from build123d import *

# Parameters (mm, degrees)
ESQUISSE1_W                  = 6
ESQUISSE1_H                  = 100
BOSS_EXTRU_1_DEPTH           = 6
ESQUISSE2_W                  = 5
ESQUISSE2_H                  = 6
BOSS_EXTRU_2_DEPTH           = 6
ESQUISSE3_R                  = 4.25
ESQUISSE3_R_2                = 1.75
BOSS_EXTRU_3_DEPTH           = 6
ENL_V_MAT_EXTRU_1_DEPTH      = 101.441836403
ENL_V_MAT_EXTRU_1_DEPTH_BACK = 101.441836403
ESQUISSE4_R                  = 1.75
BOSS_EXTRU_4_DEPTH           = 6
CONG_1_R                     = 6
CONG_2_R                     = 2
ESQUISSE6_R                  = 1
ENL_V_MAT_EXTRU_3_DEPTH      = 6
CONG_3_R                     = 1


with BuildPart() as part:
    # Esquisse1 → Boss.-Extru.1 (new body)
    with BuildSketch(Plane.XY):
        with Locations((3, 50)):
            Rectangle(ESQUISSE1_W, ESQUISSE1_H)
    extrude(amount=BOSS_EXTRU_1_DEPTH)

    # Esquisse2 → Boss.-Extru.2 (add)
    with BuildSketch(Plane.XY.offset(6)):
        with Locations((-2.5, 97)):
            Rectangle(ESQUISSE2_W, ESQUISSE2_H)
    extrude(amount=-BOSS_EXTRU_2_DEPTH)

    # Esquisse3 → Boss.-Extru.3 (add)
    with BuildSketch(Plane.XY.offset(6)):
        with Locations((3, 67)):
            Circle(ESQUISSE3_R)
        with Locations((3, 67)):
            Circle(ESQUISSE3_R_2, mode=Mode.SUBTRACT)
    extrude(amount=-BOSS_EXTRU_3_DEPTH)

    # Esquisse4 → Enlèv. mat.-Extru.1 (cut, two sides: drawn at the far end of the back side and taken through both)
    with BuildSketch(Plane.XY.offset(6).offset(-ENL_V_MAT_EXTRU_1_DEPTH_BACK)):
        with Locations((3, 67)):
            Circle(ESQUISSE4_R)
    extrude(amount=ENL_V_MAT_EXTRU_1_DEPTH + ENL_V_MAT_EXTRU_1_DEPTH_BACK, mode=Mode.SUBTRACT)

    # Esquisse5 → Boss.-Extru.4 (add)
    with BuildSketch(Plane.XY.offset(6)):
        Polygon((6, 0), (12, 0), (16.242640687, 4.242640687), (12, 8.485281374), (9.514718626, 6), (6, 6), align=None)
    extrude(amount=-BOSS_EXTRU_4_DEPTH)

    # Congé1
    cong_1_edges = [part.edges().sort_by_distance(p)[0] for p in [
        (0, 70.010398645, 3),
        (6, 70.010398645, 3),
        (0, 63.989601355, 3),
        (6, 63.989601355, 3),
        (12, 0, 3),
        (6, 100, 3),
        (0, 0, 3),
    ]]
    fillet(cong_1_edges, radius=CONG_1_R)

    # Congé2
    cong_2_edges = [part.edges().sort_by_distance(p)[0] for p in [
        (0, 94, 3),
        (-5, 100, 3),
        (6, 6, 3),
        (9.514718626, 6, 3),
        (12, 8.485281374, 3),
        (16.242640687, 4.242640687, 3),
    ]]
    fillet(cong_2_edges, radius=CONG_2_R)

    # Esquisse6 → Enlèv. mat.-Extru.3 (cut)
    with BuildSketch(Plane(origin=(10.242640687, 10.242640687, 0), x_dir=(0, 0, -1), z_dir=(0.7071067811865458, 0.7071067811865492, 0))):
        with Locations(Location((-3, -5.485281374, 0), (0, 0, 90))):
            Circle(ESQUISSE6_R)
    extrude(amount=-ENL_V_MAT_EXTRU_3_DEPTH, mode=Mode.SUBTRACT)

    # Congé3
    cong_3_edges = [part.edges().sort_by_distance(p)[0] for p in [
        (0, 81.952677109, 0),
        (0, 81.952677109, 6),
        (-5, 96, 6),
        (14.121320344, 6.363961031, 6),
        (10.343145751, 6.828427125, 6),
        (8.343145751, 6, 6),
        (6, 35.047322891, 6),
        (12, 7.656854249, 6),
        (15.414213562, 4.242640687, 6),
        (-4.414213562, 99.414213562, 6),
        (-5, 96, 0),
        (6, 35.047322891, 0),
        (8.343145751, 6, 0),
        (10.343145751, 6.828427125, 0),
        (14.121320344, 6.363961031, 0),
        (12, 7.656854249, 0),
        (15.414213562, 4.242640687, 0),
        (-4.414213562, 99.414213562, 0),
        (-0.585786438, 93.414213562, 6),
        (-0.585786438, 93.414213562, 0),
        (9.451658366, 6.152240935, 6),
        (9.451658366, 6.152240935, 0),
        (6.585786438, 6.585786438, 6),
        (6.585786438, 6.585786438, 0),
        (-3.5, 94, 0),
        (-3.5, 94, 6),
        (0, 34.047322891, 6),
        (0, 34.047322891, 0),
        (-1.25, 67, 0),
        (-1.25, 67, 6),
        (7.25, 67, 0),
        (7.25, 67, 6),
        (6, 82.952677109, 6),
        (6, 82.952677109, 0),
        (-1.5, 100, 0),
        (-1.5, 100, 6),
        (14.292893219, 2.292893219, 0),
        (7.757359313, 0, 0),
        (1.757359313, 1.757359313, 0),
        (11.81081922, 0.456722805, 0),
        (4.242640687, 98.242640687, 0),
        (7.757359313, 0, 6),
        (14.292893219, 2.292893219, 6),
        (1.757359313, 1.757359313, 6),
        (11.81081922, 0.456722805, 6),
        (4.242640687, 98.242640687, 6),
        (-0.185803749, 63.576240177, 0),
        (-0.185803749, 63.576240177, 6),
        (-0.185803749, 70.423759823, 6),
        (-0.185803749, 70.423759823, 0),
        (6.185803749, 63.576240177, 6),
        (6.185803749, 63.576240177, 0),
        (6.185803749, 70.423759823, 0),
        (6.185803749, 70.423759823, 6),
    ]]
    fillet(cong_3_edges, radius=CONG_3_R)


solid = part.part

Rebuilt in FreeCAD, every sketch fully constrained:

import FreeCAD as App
import Part
import Sketcher
from FreeCAD import Vector
Q = App.Units.Quantity


def edges_at(feature, points):
    """Names of the edges that pass closest to the given points."""
    edges = feature.Shape.Edges
    near = lambda p: min(range(len(edges)), key=lambda i: edges[i].distToShape(Part.Vertex(*p))[0])
    return sorted({f"Edge{near(p) + 1}" for p in points})

doc = App.newDocument("Part")
body = doc.addObject("PartDesign::Body", "Body")

sketch1 = body.newObject("Sketcher::SketchObject", "Sketch")
sketch1.AttachmentSupport = (doc.getObject("XY_Plane"), [""])
sketch1.MapMode = "FlatFace"
sketch1.addGeometry(Part.LineSegment(Vector(0, 100, 0), Vector(0, 0, 0)), False)
sketch1.addGeometry(Part.LineSegment(Vector(0, 0, 0), Vector(6, 0, 0)), False)
sketch1.addGeometry(Part.LineSegment(Vector(6, 0, 0), Vector(6, 100, 0)), False)
sketch1.addGeometry(Part.LineSegment(Vector(6, 100, 0), Vector(0, 100, 0)), False)
sketch1.addConstraint(Sketcher.Constraint("Coincident", 0, 2, 1, 1))
sketch1.addConstraint(Sketcher.Constraint("Coincident", 1, 2, 2, 1))
sketch1.addConstraint(Sketcher.Constraint("Coincident", 2, 2, 3, 1))
sketch1.addConstraint(Sketcher.Constraint("Coincident", 3, 2, 0, 1))
sketch1.addConstraint(Sketcher.Constraint("Vertical", 0))
sketch1.addConstraint(Sketcher.Constraint("Horizontal", 1))
sketch1.addConstraint(Sketcher.Constraint("Vertical", 2))
sketch1.addConstraint(Sketcher.Constraint("Horizontal", 3))
sketch1.addConstraint(Sketcher.Constraint("Coincident", 0, 2, -1, 1))
sketch1.addConstraint(Sketcher.Constraint("DistanceX", 1, 1, 1, 2, Q("6 mm")))
sketch1.addConstraint(Sketcher.Constraint("DistanceY", 0, 2, 0, 1, Q("100 mm")))
pad1 = body.newObject("PartDesign::Pad", "Pad")
pad1.Profile = sketch1
pad1.Length = 6

sketch2 = body.newObject("Sketcher::SketchObject", "Sketch001")
sketch2.AttachmentSupport = (doc.getObject("XY_Plane"), [""])
sketch2.MapMode = "FlatFace"
sketch2.AttachmentOffset = App.Placement(Vector(0, 0, 6), App.Rotation())
sketch2.addGeometry(Part.LineSegment(Vector(-5, 100, 0), Vector(-5, 94, 0)), False)
sketch2.addGeometry(Part.LineSegment(Vector(-5, 94, 0), Vector(0, 94, 0)), False)
sketch2.addGeometry(Part.LineSegment(Vector(0, 94, 0), Vector(0, 100, 0)), False)
sketch2.addGeometry(Part.LineSegment(Vector(0, 100, 0), Vector(-5, 100, 0)), False)
sketch2.addConstraint(Sketcher.Constraint("Coincident", 0, 2, 1, 1))
sketch2.addConstraint(Sketcher.Constraint("Coincident", 1, 2, 2, 1))
sketch2.addConstraint(Sketcher.Constraint("Coincident", 2, 2, 3, 1))
sketch2.addConstraint(Sketcher.Constraint("Coincident", 3, 2, 0, 1))
sketch2.addConstraint(Sketcher.Constraint("Vertical", 0))
sketch2.addConstraint(Sketcher.Constraint("Horizontal", 1))
sketch2.addConstraint(Sketcher.Constraint("Vertical", 2))
sketch2.addConstraint(Sketcher.Constraint("Horizontal", 3))
sketch2.addConstraint(Sketcher.Constraint("PointOnObject", 1, 2, -2))
sketch2.addConstraint(Sketcher.Constraint("DistanceX", 1, 1, 1, 2, Q("5 mm")))
sketch2.addConstraint(Sketcher.Constraint("DistanceY", 0, 2, 0, 1, Q("6 mm")))
sketch2.addConstraint(Sketcher.Constraint("DistanceY", -1, 1, 0, 2, Q("94 mm")))
pad2 = body.newObject("PartDesign::Pad", "Pad001")
pad2.Profile = sketch2
pad2.Length = 6
pad2.Reversed = True

sketch3 = body.newObject("Sketcher::SketchObject", "Sketch002")
sketch3.AttachmentSupport = (doc.getObject("XY_Plane"), [""])
sketch3.MapMode = "FlatFace"
sketch3.AttachmentOffset = App.Placement(Vector(0, 0, 6), App.Rotation())
sketch3.addGeometry(Part.Circle(Vector(3, 67, 0), Vector(0, 0, 1), 4.2), False)
sketch3.addGeometry(Part.Circle(Vector(3, 67, 0), Vector(0, 0, 1), 1.8), False)
sketch3.addConstraint(Sketcher.Constraint("Coincident", 1, 3, 0, 3))
sketch3.addConstraint(Sketcher.Constraint("Diameter", 0, Q("8.5 mm")))
sketch3.addConstraint(Sketcher.Constraint("Diameter", 1, Q("3.5 mm")))
sketch3.addConstraint(Sketcher.Constraint("DistanceX", -1, 1, 0, 3, Q("3 mm")))
sketch3.addConstraint(Sketcher.Constraint("DistanceY", -1, 1, 0, 3, Q("67 mm")))
pad3 = body.newObject("PartDesign::Pad", "Pad002")
pad3.Profile = sketch3
pad3.Length = 6
pad3.Reversed = True

sketch4 = body.newObject("Sketcher::SketchObject", "Sketch003")
sketch4.AttachmentSupport = (doc.getObject("XY_Plane"), [""])
sketch4.MapMode = "FlatFace"
sketch4.AttachmentOffset = App.Placement(Vector(0, 0, 6), App.Rotation())
sketch4.addGeometry(Part.Circle(Vector(3, 67, 0), Vector(0, 0, 1), 1.8), False)
sketch4.addConstraint(Sketcher.Constraint("Diameter", 0, Q("3.5 mm")))
sketch4.addConstraint(Sketcher.Constraint("DistanceX", -1, 1, 0, 3, Q("3 mm")))
sketch4.addConstraint(Sketcher.Constraint("DistanceY", -1, 1, 0, 3, Q("67 mm")))
pocket1 = body.newObject("PartDesign::Pocket", "Pocket")
pocket1.Profile = sketch4
pocket1.Type = "ThroughAll"
pocket1.Midplane = True

sketch5 = body.newObject("Sketcher::SketchObject", "Sketch004")
sketch5.AttachmentSupport = (doc.getObject("XY_Plane"), [""])
sketch5.MapMode = "FlatFace"
sketch5.AttachmentOffset = App.Placement(Vector(0, 0, 6), App.Rotation())
sketch5.addGeometry(Part.LineSegment(Vector(6, 0, 0), Vector(12, 0, 0)), False)
sketch5.addGeometry(Part.LineSegment(Vector(12, 0, 0), Vector(16.2, 4.2, 0)), False)
sketch5.addGeometry(Part.LineSegment(Vector(16.2, 4.2, 0), Vector(12, 8.5, 0)), False)
sketch5.addGeometry(Part.LineSegment(Vector(12, 8.5, 0), Vector(9.5, 6, 0)), False)
sketch5.addGeometry(Part.LineSegment(Vector(9.5, 6, 0), Vector(6, 6, 0)), False)
sketch5.addGeometry(Part.LineSegment(Vector(6, 6, 0), Vector(6, 0, 0)), False)
sketch5.addConstraint(Sketcher.Constraint("Coincident", 0, 2, 1, 1))
sketch5.addConstraint(Sketcher.Constraint("Coincident", 1, 2, 2, 1))
sketch5.addConstraint(Sketcher.Constraint("Coincident", 2, 2, 3, 1))
sketch5.addConstraint(Sketcher.Constraint("Coincident", 3, 2, 4, 1))
sketch5.addConstraint(Sketcher.Constraint("Coincident", 4, 2, 5, 1))
sketch5.addConstraint(Sketcher.Constraint("Coincident", 5, 2, 0, 1))
sketch5.addConstraint(Sketcher.Constraint("Horizontal", 0))
sketch5.addConstraint(Sketcher.Constraint("Horizontal", 4))
sketch5.addConstraint(Sketcher.Constraint("Vertical", 5))
sketch5.addConstraint(Sketcher.Constraint("PointOnObject", 0, 2, -1))
sketch5.addConstraint(Sketcher.Constraint("Perpendicular", 1, 2))
sketch5.addConstraint(Sketcher.Constraint("Perpendicular", 2, 3))
sketch5.addConstraint(Sketcher.Constraint("Vertical", 0, 2, 2, 2))
sketch5.addConstraint(Sketcher.Constraint("Equal", 0, 5))
sketch5.addConstraint(Sketcher.Constraint("Equal", 1, 2))
sketch5.addConstraint(Sketcher.Constraint("DistanceX", 0, 1, 0, 2, Q("6 mm")))
sketch5.addConstraint(Sketcher.Constraint("Distance", 1, Q("6 mm")))
sketch5.addConstraint(Sketcher.Constraint("DistanceX", -1, 1, 0, 2, Q("12 mm")))
pad4 = body.newObject("PartDesign::Pad", "Pad003")
pad4.Profile = sketch5
pad4.Length = 6
pad4.Reversed = True
doc.recompute()

fillet = body.newObject("PartDesign::Fillet", "Fillet")
fillet.Base = (pad4, edges_at(pad4, [
    (0, 70.01, 3),
    (6, 70.01, 3),
    (0, 63.99, 3),
    (6, 63.99, 3),
    (12, 0, 3),
    (6, 100, 3),
    (0, 0, 3),
]))
fillet.Radius = 6
doc.recompute()

fillet2 = body.newObject("PartDesign::Fillet", "Fillet001")
fillet2.Base = (fillet, edges_at(fillet, [
    (0, 94, 3),
    (-5, 100, 3),
    (6, 6, 3),
    (9.515, 6, 3),
    (12, 8.485, 3),
    (16.243, 4.243, 3),
]))
fillet2.Radius = 2

sketch6 = body.newObject("Sketcher::SketchObject", "Sketch005")
sketch6.Placement = App.Placement(Vector(10.242641, 10.242641, 0), App.Rotation(Vector(0, 0, -1), Vector(-0.707106781, 0.707106781, 0), Vector(0.707106781, 0.707106781, 0), "ZXY"))
sketch6.addGeometry(Part.Circle(Vector(-3, -5.5, 0), Vector(0, 0, 1), 1), False)
sketch6.addConstraint(Sketcher.Constraint("Diameter", 0, Q("2 mm")))
sketch6.addConstraint(Sketcher.Constraint("DistanceX", 0, 3, -1, 1, Q("3 mm")))
sketch6.addConstraint(Sketcher.Constraint("DistanceY", 0, 3, -1, 1, Q("5.485281 mm")))
pocket2 = body.newObject("PartDesign::Pocket", "Pocket001")
pocket2.Profile = sketch6
pocket2.Length = 6
doc.recompute()

fillet3 = body.newObject("PartDesign::Fillet", "Fillet002")
fillet3.Base = (pocket2, edges_at(pocket2, [
    (0, 81.953, 0),
    (0, 81.953, 6),
    (-5, 96, 6),
    (14.121, 6.364, 6),
    (10.343, 6.828, 6),
    (8.343, 6, 6),
    (6, 35.047, 6),
    (12, 7.657, 6),
    (15.414, 4.243, 6),
    (-4.414, 99.414, 6),
    (-5, 96, 0),
    (6, 35.047, 0),
    (8.343, 6, 0),
    (10.343, 6.828, 0),
    (14.121, 6.364, 0),
    (12, 7.657, 0),
    (15.414, 4.243, 0),
    (-4.414, 99.414, 0),
    (-0.586, 93.414, 6),
    (-0.586, 93.414, 0),
    (9.452, 6.152, 6),
    (9.452, 6.152, 0),
    (6.586, 6.586, 6),
    (6.586, 6.586, 0),
    (-3.5, 94, 0),
    (-3.5, 94, 6),
    (0, 34.047, 6),
    (0, 34.047, 0),
    (-1.25, 67, 0),
    (-1.25, 67, 6),
    (7.25, 67, 0),
    (7.25, 67, 6),
    (6, 82.953, 6),
    (6, 82.953, 0),
    (-1.5, 100, 0),
    (-1.5, 100, 6),
    (14.293, 2.293, 0),
    (7.757, 0, 0),
    (1.757, 1.757, 0),
    (11.811, 0.457, 0),
    (4.243, 98.243, 0),
    (7.757, 0, 6),
    (14.293, 2.293, 6),
    (1.757, 1.757, 6),
    (11.811, 0.457, 6),
    (4.243, 98.243, 6),
    (-0.186, 63.576, 0),
    (-0.186, 63.576, 6),
    (-0.186, 70.424, 6),
    (-0.186, 70.424, 0),
    (6.186, 63.576, 6),
    (6.186, 63.576, 0),
    (6.186, 70.424, 0),
    (6.186, 70.424, 6),
]))
fillet3.Radius = 1

doc.recompute()
